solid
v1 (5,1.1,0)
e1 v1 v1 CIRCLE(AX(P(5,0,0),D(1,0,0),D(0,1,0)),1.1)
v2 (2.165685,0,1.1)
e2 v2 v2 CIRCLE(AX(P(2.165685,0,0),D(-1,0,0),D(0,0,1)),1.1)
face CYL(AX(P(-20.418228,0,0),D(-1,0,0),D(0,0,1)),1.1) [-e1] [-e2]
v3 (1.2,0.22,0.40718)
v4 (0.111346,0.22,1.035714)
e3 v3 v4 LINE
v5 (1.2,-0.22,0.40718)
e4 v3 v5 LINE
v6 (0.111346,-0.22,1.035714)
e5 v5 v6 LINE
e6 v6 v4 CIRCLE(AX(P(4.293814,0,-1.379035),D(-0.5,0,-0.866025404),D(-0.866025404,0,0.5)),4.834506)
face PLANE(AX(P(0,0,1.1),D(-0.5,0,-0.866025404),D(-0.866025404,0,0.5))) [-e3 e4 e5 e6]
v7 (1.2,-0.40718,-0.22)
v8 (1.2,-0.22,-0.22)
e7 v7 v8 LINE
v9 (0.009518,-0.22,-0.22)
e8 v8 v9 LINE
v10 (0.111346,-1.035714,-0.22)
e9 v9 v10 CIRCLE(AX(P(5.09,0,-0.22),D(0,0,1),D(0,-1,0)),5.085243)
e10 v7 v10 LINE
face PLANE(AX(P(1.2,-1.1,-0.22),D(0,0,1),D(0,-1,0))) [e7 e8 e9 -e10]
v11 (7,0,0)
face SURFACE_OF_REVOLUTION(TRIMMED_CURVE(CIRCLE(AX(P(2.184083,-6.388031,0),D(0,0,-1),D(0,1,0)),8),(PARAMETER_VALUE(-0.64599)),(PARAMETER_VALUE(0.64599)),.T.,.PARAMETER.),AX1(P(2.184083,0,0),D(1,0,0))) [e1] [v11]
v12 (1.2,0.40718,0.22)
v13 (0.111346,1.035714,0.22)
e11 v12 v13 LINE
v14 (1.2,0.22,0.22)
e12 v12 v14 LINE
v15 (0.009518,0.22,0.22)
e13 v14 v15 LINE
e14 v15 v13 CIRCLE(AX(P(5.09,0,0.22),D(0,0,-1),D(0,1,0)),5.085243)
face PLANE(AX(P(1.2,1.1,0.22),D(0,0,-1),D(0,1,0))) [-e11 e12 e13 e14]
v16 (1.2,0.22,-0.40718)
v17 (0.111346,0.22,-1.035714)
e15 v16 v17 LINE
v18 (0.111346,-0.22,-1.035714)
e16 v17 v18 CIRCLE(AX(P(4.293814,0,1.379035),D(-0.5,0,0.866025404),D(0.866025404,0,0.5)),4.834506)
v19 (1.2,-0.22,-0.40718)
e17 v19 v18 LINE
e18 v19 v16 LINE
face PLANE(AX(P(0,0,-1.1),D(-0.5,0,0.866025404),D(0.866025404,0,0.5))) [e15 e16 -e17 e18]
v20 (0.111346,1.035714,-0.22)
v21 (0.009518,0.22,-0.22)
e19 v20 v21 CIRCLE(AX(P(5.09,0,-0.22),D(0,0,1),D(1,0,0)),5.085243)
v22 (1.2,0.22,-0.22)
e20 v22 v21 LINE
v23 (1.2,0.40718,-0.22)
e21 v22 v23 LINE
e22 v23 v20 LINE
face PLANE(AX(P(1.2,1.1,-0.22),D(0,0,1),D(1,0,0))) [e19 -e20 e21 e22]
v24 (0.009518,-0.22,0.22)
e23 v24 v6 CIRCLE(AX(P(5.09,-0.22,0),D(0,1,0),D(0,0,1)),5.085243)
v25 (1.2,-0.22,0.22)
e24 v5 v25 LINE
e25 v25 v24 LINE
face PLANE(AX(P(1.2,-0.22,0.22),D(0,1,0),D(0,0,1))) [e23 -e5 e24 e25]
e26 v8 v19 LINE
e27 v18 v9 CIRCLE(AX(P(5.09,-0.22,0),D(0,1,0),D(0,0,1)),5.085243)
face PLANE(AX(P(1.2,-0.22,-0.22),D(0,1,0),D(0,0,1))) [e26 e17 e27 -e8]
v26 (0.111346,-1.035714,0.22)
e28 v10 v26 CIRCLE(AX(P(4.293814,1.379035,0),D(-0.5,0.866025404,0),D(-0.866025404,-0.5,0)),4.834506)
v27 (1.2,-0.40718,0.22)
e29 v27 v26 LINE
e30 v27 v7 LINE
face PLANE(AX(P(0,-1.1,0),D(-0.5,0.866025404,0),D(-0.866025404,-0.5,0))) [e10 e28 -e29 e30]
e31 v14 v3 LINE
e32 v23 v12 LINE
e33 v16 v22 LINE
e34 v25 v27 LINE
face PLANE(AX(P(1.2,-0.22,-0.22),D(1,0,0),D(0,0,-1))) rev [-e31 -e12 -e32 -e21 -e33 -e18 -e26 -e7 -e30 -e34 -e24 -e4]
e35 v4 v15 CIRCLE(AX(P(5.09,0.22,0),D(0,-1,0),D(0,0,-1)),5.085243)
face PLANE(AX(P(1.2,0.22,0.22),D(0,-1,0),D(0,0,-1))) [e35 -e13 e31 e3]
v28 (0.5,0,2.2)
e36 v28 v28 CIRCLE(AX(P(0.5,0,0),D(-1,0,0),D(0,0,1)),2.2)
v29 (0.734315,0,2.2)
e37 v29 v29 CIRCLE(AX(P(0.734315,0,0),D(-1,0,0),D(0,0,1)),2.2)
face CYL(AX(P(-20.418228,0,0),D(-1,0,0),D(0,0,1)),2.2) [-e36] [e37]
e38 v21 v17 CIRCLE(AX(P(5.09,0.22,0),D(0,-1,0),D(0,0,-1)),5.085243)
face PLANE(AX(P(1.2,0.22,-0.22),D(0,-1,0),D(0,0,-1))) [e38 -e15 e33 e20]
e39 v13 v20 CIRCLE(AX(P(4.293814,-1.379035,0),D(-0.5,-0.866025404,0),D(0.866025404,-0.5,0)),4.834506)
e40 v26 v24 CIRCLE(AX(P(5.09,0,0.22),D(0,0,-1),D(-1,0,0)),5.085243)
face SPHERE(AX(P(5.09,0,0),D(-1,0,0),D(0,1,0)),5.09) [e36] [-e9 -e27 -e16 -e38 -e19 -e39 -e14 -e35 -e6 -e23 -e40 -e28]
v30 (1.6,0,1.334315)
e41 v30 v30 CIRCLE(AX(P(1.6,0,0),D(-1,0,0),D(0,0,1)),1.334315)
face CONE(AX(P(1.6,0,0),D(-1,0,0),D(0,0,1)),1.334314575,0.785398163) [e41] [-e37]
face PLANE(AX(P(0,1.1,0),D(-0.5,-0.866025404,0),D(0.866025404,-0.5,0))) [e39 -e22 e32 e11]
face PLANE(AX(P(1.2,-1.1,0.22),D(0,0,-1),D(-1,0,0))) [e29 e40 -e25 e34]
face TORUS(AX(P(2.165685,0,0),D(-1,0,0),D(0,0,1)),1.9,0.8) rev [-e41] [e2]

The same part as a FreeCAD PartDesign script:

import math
import FreeCAD as App
import Part
import Sketcher

V = App.Vector
Q = App.Units.Quantity


def faces_at(feature, points):
    """Names of the faces that lie closest to the given points."""
    faces = feature.Shape.Faces
    near = lambda p: min(range(len(faces)), key=lambda i: faces[i].distToShape(Part.Vertex(*p))[0])
    return sorted({f"Face{near(p) + 1}" for p in points})

doc = App.newDocument("Part")
body = doc.addObject("PartDesign::Body", "Body")

# Sketch on XY plane
sketch1 = body.newObject("Sketcher::SketchObject", "Sketch")
sketch1.AttachmentSupport = (doc.getObject("XY_Plane"), [""])
sketch1.MapMode = "FlatFace"
sketch1.addGeometry(Part.LineSegment(V(7, 0, 0), V(7, 1.1, 0)), False)
sketch1.addGeometry(Part.LineSegment(V(7, 1.1, 0), V(2.165685, 1.1, 0)), False)
sketch1.addGeometry(Part.ArcOfCircle(Part.Circle(V(2.165685, 1.9, 0), V(0, 0, 1), 0.8), math.radians(-135), math.radians(-90)), False)
sketch1.addGeometry(Part.LineSegment(V(1.6, 1.334315, 0), V(0.734315, 2.2, 0)), False)
sketch1.addGeometry(Part.LineSegment(V(0.734315, 2.2, 0), V(0.5, 2.2, 0)), False)
sketch1.addGeometry(Part.ArcOfCircle(Part.Circle(V(5.09, 0, 0), V(0, 0, 1), 5.09), math.radians(154.391468), math.radians(180)), False)
sketch1.addGeometry(Part.LineSegment(V(0, 0, 0), V(7, 0, 0)), False)
sketch1.addConstraint(Sketcher.Constraint("Coincident", 0, 2, 1, 1))
sketch1.addConstraint(Sketcher.Constraint("Tangent", 1, 2, 2, 2))
sketch1.addConstraint(Sketcher.Constraint("Tangent", 2, 1, 3, 1))
sketch1.addConstraint(Sketcher.Constraint("Coincident", 3, 2, 4, 1))
sketch1.addConstraint(Sketcher.Constraint("Coincident", 4, 2, 5, 1))
sketch1.addConstraint(Sketcher.Constraint("Coincident", 5, 2, 6, 1))
sketch1.addConstraint(Sketcher.Constraint("Coincident", 6, 2, 0, 1))
sketch1.addConstraint(Sketcher.Constraint("Vertical", 0))
sketch1.addConstraint(Sketcher.Constraint("Horizontal", 1))
sketch1.addConstraint(Sketcher.Constraint("Horizontal", 4))
sketch1.addConstraint(Sketcher.Constraint("Horizontal", 6))
sketch1.addConstraint(Sketcher.Constraint("Coincident", 5, 2, -1, 1))
sketch1.addConstraint(Sketcher.Constraint("PointOnObject", 5, 3, -1))
sketch1.addConstraint(Sketcher.Constraint("Radius", 2, Q("0.8 mm")))
sketch1.addConstraint(Sketcher.Constraint("DistanceX", 6, 1, 6, 2, Q("7 mm")))
sketch1.addConstraint(Sketcher.Constraint("Angle", 3, Q("135 deg")))
sketch1.addConstraint(Sketcher.Constraint("Radius", 5, Q("5.09 mm")))
sketch1.addConstraint(Sketcher.Constraint("DistanceY", 0, 1, 0, 2, Q("1.1 mm")))
sketch1.addConstraint(Sketcher.Constraint("DistanceX", -1, 1, 2, 1, Q("1.6 mm")))
sketch1.addConstraint(Sketcher.Constraint("DistanceY", -1, 1, 3, 2, Q("2.2 mm")))
revolution = body.newObject("PartDesign::Revolution", "Revolution")
revolution.Profile = sketch1
revolution.ReferenceAxis = (sketch1, ["H_Axis"])
revolution.Angle = 360

# Sketch on YZ plane
sketch2 = body.newObject("Sketcher::SketchObject", "Sketch001")
sketch2.AttachmentSupport = (doc.getObject("YZ_Plane"), [""])
sketch2.MapMode = "FlatFace"
sketch2.addGeometry(Part.LineSegment(V(1.1, -0.22, 0), V(1.1, 0.22, 0)), False)
sketch2.addGeometry(Part.LineSegment(V(1.1, 0.22, 0), V(0.22, 0.22, 0)), False)
sketch2.addGeometry(Part.LineSegment(V(0.22, 0.22, 0), V(0.22, 1.1, 0)), False)
sketch2.addGeometry(Part.LineSegment(V(0.22, 1.1, 0), V(-0.22, 1.1, 0)), False)
sketch2.addGeometry(Part.LineSegment(V(-0.22, 1.1, 0), V(-0.22, 0.22, 0)), False)
sketch2.addGeometry(Part.LineSegment(V(-0.22, 0.22, 0), V(-1.1, 0.22, 0)), False)
sketch2.addGeometry(Part.LineSegment(V(-1.1, 0.22, 0), V(-1.1, -0.22, 0)), False)
sketch2.addGeometry(Part.LineSegment(V(-1.1, -0.22, 0), V(-0.22, -0.22, 0)), False)
sketch2.addGeometry(Part.LineSegment(V(-0.22, -0.22, 0), V(-0.22, -1.1, 0)), False)
sketch2.addGeometry(Part.LineSegment(V(-0.22, -1.1, 0), V(0.22, -1.1, 0)), False)
sketch2.addGeometry(Part.LineSegment(V(0.22, -1.1, 0), V(0.22, -0.22, 0)), False)
sketch2.addGeometry(Part.LineSegment(V(0.22, -0.22, 0), V(1.1, -0.22, 0)), False)
sketch2.addConstraint(Sketcher.Constraint("Coincident", 0, 2, 1, 1))
sketch2.addConstraint(Sketcher.Constraint("Coincident", 1, 2, 2, 1))
sketch2.addConstraint(Sketcher.Constraint("Coincident", 2, 2, 3, 1))
sketch2.addConstraint(Sketcher.Constraint("Coincident", 3, 2, 4, 1))
sketch2.addConstraint(Sketcher.Constraint("Coincident", 4, 2, 5, 1))
sketch2.addConstraint(Sketcher.Constraint("Coincident", 5, 2, 6, 1))
sketch2.addConstraint(Sketcher.Constraint("Coincident", 6, 2, 7, 1))
sketch2.addConstraint(Sketcher.Constraint("Coincident", 7, 2, 8, 1))
sketch2.addConstraint(Sketcher.Constraint("Coincident", 8, 2, 9, 1))
sketch2.addConstraint(Sketcher.Constraint("Coincident", 9, 2, 10, 1))
sketch2.addConstraint(Sketcher.Constraint("Coincident", 10, 2, 11, 1))
sketch2.addConstraint(Sketcher.Constraint("Coincident", 11, 2, 0, 1))
sketch2.addConstraint(Sketcher.Constraint("Vertical", 0))
sketch2.addConstraint(Sketcher.Constraint("Horizontal", 1))
sketch2.addConstraint(Sketcher.Constraint("Vertical", 2))
sketch2.addConstraint(Sketcher.Constraint("Horizontal", 3))
sketch2.addConstraint(Sketcher.Constraint("Vertical", 4))
sketch2.addConstraint(Sketcher.Constraint("Horizontal", 5))
sketch2.addConstraint(Sketcher.Constraint("Vertical", 6))
sketch2.addConstraint(Sketcher.Constraint("Horizontal", 7))
sketch2.addConstraint(Sketcher.Constraint("Vertical", 8))
sketch2.addConstraint(Sketcher.Constraint("Horizontal", 9))
sketch2.addConstraint(Sketcher.Constraint("Vertical", 10))
sketch2.addConstraint(Sketcher.Constraint("Horizontal", 11))
sketch2.addConstraint(Sketcher.Constraint("Symmetric", 0, 2, 6, 2, -1, 1))
sketch2.addConstraint(Sketcher.Constraint("Symmetric", 2, 2, 8, 2, -1, 1))
sketch2.addConstraint(Sketcher.Constraint("Symmetric", 4, 2, 10, 2, -1, 1))
sketch2.addConstraint(Sketcher.Constraint("Symmetric", 1, 2, 4, 2, -2))
sketch2.addConstraint(Sketcher.Constraint("Equal", 9, 0))
sketch2.addConstraint(Sketcher.Constraint("Equal", 11, 2))
sketch2.addConstraint(Sketcher.Constraint("DistanceX", 1, 2, 1, 1, Q("0.88 mm")))
sketch2.addConstraint(Sketcher.Constraint("DistanceX", 3, 2, 3, 1, Q("0.44 mm")))
pocket1 = body.newObject("PartDesign::Pocket", "Pocket")
pocket1.Profile = sketch2
pocket1.Length = 1.2
pocket1.Reversed = True

# Sketch on XY plane
sketch3 = body.newObject("Sketcher::SketchObject", "Sketch002")
sketch3.AttachmentSupport = (doc.getObject("XY_Plane"), [""])
sketch3.MapMode = "FlatFace"
sketch3.addGeometry(Part.LineSegment(V(7.5, 0, 0), V(7, 0, 0)), False)
sketch3.addGeometry(Part.ArcOfCircle(Part.Circle(V(2.184083, 6.388031, 0), V(0, 0, 1), 8), math.radians(-69.390941), math.radians(-52.987471)), False)
sketch3.addGeometry(Part.LineSegment(V(5, -1.1, 0), V(7.5, -1.1, 0)), False)
sketch3.addGeometry(Part.LineSegment(V(7.5, -1.1, 0), V(7.5, 0, 0)), False)
sketch3.addConstraint(Sketcher.Constraint("Coincident", 0, 2, 1, 2))
sketch3.addConstraint(Sketcher.Constraint("Coincident", 1, 1, 2, 1))
sketch3.addConstraint(Sketcher.Constraint("Coincident", 2, 2, 3, 1))
sketch3.addConstraint(Sketcher.Constraint("Coincident", 3, 2, 0, 1))
sketch3.addConstraint(Sketcher.Constraint("Horizontal", 0))
sketch3.addConstraint(Sketcher.Constraint("Horizontal", 2))
sketch3.addConstraint(Sketcher.Constraint("Vertical", 3))
sketch3.addConstraint(Sketcher.Constraint("PointOnObject", 0, 2, -1))
sketch3.addConstraint(Sketcher.Constraint("Radius", 1, Q("8 mm")))
sketch3.addConstraint(Sketcher.Constraint("DistanceX", 0, 2, 0, 1, Q("0.5 mm")))
sketch3.addConstraint(Sketcher.Constraint("DistanceX", 2, 1, 2, 2, Q("2.5 mm")))
sketch3.addConstraint(Sketcher.Constraint("DistanceY", 3, 1, 3, 2, Q("1.1 mm")))
sketch3.addConstraint(Sketcher.Constraint("DistanceX", -1, 1, 0, 2, Q("7 mm")))
groove = body.newObject("PartDesign::Groove", "Groove")
groove.Profile = sketch3
groove.ReferenceAxis = (sketch3, ["H_Axis"])
groove.Angle = 360
doc.recompute()

draft = body.newObject("PartDesign::Draft", "Draft")
draft.Base = (groove, faces_at(groove, [
    (0.66, -1.1, 0),
    (0.66, 0, -1.1),
    (0.66, 0, 1.1),
    (0.66, 1.1, 0),
]))
draft.NeutralPlane = (doc.getObject("YZ_Plane"), [""])
draft.Angle = 30
draft.Reversed = True

doc.recompute()
